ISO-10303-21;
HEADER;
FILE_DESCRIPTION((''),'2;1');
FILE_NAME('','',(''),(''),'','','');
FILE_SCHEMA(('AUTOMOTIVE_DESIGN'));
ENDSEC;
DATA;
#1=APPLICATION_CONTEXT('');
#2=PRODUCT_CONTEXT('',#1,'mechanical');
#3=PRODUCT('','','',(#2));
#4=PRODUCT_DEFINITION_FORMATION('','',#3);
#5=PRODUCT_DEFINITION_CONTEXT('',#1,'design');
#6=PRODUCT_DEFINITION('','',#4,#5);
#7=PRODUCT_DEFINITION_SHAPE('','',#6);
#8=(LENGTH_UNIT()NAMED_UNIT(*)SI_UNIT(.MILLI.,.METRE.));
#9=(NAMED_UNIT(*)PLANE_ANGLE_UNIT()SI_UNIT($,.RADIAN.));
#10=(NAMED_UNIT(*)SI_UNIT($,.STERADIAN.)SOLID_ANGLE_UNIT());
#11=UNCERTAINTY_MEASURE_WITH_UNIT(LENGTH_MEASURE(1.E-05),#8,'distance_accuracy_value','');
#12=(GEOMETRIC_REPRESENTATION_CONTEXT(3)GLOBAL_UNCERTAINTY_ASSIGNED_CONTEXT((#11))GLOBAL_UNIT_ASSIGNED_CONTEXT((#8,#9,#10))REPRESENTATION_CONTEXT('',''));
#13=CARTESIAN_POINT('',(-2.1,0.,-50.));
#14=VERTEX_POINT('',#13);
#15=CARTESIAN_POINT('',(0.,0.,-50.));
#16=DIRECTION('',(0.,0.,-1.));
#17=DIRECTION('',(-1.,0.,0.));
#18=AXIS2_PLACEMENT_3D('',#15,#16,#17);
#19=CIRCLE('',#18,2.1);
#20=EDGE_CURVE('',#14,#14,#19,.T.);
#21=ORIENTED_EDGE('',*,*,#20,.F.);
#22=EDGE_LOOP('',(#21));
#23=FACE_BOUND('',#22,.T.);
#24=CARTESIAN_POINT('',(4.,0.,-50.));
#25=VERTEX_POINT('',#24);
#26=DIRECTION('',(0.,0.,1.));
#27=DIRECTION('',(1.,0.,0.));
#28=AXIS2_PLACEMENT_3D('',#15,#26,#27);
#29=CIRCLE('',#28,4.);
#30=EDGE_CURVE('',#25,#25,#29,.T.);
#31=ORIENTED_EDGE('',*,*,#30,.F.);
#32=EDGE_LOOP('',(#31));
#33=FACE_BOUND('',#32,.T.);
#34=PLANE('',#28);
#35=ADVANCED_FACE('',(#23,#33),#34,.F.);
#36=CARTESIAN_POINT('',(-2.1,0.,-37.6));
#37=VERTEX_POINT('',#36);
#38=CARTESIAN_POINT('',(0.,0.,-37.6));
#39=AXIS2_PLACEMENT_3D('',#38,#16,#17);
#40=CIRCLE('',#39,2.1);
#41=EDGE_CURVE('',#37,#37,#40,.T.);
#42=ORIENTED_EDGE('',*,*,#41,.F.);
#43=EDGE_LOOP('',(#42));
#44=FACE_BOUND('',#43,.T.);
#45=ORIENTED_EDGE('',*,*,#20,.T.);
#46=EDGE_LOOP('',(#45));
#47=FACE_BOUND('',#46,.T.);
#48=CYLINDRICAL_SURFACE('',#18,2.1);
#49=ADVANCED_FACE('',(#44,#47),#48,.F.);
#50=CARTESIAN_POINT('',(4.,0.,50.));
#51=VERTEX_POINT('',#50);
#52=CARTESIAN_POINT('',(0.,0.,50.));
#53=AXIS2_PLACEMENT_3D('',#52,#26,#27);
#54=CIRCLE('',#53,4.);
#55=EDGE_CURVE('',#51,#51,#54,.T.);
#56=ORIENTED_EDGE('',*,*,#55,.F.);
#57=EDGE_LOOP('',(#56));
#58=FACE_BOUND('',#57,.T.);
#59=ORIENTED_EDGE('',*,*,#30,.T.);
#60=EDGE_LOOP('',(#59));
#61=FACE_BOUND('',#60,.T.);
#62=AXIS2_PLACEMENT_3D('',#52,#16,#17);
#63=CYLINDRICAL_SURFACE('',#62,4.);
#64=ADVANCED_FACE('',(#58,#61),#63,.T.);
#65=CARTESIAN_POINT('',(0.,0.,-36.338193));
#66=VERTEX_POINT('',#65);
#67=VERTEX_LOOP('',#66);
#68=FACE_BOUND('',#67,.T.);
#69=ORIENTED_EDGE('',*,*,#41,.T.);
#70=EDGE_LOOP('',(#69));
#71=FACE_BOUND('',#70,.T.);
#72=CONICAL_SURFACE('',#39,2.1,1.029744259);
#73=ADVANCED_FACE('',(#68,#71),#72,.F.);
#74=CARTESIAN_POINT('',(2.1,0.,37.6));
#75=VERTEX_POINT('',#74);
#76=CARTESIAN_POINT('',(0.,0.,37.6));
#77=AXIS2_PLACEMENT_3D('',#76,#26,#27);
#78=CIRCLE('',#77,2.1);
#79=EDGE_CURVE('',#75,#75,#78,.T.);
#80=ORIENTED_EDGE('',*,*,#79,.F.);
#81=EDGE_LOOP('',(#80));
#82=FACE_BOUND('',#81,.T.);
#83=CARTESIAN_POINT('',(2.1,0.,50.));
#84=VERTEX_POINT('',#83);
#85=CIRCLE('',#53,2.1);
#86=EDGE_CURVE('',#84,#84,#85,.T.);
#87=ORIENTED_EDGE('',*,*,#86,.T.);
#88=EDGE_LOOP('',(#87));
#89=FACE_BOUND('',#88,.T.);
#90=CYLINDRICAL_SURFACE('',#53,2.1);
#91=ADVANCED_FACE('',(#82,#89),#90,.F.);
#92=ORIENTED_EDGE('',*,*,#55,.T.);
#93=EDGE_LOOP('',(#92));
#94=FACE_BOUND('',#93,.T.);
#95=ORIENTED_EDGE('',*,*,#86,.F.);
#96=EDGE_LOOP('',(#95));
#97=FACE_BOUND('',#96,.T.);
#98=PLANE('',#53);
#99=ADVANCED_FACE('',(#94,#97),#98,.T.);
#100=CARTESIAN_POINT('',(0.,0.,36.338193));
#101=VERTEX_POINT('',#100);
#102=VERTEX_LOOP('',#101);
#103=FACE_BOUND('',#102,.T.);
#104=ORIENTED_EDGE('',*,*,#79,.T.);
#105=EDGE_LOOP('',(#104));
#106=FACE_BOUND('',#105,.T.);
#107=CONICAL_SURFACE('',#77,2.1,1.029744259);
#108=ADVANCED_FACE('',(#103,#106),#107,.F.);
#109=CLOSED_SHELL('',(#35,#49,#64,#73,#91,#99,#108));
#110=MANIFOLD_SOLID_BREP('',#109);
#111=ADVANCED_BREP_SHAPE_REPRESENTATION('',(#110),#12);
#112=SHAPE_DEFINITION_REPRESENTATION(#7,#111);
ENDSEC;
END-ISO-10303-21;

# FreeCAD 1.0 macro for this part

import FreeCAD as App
import Part
import Sketcher
Q = App.Units.Quantity


def add_polygon(sketch, points):
    """Adds a closed chain of lines whose ends are joined by coincident constraints."""
    first, n = sketch.GeometryCount, len(points)
    for a, b in zip(points, points[1:] + points[:1]):
        sketch.addGeometry(Part.LineSegment(App.Vector(*a, 0), App.Vector(*b, 0)), False)
    for i in range(n):
        sketch.addConstraint(Sketcher.Constraint("Coincident", first + i, 2, first + (i + 1) % n, 1))

doc = App.newDocument("Part")
body = doc.addObject("PartDesign::Body", "Body")

sketch1 = body.newObject("Sketcher::SketchObject", "Sketch")
sketch1.AttachmentSupport = (doc.getObject("XY_Plane"), [""])
sketch1.MapMode = "FlatFace"
sketch1.addGeometry(Part.Circle(App.Vector(0, 0, 0), App.Vector(0, 0, 1), 4), False)
sketch1.addConstraint([
    Sketcher.Constraint("Coincident", 0, 3, -1, 1),
    Sketcher.Constraint("Diameter", 0, Q("8 mm")),
])
pad1 = body.newObject("PartDesign::Pad", "Pad")
pad1.Profile = sketch1
pad1.Length = 100
pad1.Midplane = True

sketch2 = body.newObject("Sketcher::SketchObject", "Sketch001")
sketch2.AttachmentSupport = (doc.getObject("YZ_Plane"), [""])
sketch2.MapMode = "FlatFace"
add_polygon(sketch2, [(0, 36.3), (0, 50), (-2.1, 50), (-2.1, 37.6)])
sketch2.addConstraint([
    Sketcher.Constraint("Vertical", 0),
    Sketcher.Constraint("Horizontal", 1),
    Sketcher.Constraint("Vertical", 2),
    Sketcher.Constraint("PointOnObject", 0, 2, -2),
    Sketcher.Constraint("Angle", 3, Q("-31 deg")),
    Sketcher.Constraint("DistanceX", 1, 2, 1, 1, Q("2.1 mm")),
    Sketcher.Constraint("DistanceY", 2, 2, 2, 1, Q("12.4 mm")),
    Sketcher.Constraint("DistanceY", -1, 1, 0, 2, Q("50 mm")),
])
groove = body.newObject("PartDesign::Groove", "Groove")
groove.Profile = sketch2
groove.ReferenceAxis = (sketch2, ["V_Axis"])
groove.Angle = 360
doc.recompute()

mirrored = body.newObject("PartDesign::Mirrored", "Mirrored")
mirrored.Originals = [groove]
mirrored.MirrorPlane = (doc.getObject("XY_Plane"), [""])
body.Tip = mirrored

doc.recompute()
